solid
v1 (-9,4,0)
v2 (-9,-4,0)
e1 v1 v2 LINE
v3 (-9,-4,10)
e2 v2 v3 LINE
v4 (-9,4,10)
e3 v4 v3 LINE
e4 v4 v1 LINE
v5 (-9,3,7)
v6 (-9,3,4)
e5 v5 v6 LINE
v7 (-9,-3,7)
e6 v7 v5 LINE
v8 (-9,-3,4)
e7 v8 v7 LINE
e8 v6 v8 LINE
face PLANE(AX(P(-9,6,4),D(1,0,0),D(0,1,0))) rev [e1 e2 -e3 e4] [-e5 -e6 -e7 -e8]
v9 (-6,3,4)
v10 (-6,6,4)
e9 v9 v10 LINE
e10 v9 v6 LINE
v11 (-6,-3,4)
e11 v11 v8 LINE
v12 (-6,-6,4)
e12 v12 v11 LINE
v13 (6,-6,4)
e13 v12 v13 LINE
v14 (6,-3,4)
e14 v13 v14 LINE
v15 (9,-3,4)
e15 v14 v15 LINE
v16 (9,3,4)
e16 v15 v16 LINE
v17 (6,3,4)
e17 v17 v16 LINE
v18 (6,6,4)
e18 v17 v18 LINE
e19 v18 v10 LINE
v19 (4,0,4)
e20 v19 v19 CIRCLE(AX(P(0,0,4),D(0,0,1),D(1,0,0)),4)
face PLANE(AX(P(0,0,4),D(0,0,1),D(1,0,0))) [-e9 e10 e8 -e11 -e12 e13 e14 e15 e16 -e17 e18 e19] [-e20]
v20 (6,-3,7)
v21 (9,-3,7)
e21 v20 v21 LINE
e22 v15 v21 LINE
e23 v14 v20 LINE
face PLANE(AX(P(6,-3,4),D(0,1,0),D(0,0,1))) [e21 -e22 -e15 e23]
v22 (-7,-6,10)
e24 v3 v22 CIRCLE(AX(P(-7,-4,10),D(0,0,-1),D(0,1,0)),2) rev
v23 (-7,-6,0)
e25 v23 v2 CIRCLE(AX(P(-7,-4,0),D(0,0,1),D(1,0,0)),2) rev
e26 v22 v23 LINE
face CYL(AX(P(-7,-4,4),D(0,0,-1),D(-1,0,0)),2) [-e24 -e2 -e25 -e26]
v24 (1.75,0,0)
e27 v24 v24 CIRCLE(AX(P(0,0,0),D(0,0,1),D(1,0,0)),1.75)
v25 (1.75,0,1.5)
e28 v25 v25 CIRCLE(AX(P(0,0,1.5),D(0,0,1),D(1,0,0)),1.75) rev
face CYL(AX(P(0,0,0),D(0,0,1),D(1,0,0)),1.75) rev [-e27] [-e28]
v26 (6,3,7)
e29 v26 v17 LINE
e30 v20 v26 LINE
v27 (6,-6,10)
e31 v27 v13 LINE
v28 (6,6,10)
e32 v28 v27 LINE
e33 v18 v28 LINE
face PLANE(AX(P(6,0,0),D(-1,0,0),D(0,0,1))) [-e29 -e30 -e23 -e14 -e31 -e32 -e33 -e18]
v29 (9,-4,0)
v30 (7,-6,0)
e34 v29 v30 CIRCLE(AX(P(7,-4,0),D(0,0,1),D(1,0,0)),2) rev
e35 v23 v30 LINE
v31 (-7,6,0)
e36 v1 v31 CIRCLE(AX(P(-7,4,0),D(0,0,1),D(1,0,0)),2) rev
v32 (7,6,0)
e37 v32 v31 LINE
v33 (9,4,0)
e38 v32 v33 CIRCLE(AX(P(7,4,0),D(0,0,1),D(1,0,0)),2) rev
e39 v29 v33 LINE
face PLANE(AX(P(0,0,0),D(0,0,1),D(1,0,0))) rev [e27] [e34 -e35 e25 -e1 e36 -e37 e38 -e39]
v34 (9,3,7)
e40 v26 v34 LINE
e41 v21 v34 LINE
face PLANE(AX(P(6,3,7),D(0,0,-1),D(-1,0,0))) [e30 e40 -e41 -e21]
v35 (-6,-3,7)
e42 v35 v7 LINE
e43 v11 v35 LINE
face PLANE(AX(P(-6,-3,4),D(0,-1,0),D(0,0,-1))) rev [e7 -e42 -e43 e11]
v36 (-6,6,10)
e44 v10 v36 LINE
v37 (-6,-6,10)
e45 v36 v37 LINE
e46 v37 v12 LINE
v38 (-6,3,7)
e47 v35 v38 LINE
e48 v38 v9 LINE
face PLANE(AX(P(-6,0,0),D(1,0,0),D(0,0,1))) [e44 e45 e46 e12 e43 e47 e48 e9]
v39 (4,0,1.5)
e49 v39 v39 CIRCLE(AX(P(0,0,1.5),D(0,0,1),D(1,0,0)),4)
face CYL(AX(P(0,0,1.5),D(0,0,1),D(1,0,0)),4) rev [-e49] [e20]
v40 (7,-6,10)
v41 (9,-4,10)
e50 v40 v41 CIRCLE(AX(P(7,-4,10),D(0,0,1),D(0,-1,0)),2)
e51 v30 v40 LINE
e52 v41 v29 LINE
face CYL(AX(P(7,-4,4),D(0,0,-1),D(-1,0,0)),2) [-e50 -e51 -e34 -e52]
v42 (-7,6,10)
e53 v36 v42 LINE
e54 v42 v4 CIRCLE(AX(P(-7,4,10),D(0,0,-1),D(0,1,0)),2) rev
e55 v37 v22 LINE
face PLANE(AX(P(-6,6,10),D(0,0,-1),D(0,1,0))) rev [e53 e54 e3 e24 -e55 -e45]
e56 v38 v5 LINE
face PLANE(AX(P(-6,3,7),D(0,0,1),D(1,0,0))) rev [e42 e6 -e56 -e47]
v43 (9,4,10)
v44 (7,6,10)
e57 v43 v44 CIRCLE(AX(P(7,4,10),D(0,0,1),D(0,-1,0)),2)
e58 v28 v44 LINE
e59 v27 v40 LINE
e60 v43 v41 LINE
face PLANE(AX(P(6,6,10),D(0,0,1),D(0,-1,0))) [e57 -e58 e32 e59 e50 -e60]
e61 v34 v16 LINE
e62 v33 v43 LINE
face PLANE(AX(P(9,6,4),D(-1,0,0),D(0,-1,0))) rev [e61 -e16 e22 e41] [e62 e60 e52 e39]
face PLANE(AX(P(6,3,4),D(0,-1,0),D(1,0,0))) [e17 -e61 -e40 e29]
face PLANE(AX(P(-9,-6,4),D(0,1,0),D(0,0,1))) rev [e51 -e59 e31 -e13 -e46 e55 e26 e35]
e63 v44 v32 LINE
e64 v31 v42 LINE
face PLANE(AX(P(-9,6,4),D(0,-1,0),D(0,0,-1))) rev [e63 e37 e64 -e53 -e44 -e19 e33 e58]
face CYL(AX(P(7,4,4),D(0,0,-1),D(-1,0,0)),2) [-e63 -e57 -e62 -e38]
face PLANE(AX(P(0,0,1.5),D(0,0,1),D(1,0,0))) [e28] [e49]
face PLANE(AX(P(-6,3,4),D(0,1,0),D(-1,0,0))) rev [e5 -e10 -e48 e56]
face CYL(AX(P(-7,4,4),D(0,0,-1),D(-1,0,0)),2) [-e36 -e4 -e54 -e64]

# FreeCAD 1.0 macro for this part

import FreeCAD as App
import Part
import Sketcher
Q = App.Units.Quantity


def edges_at(feature, points):
    """Names of the edges that pass closest to the given points."""
    edges = feature.Shape.Edges
    near = lambda p: min(range(len(edges)), key=lambda i: edges[i].distToShape(Part.Vertex(*p))[0])
    return sorted({f"Edge{near(p) + 1}" for p in points})

doc = App.newDocument("Part")
body = doc.addObject("PartDesign::Body", "Body")

# Sketch on XY plane
sketch1 = doc.addObject("Sketcher::SketchObject", "Sketch")
body.addObject(sketch1)
sketch1.AttachmentSupport = (doc.XY_Plane, [""])
sketch1.MapMode = "FlatFace"
sketch1.addGeometry(Part.LineSegment(App.Vector(-9, 6, 0), App.Vector(-9, -6, 0)), False)
sketch1.addGeometry(Part.LineSegment(App.Vector(-9, -6, 0), App.Vector(9, -6, 0)), False)
sketch1.addGeometry(Part.LineSegment(App.Vector(9, -6, 0), App.Vector(9, 6, 0)), False)
sketch1.addGeometry(Part.LineSegment(App.Vector(9, 6, 0), App.Vector(-9, 6, 0)), False)
sketch1.addConstraint(Sketcher.Constraint("Coincident", 0, 2, 1, 1))
sketch1.addConstraint(Sketcher.Constraint("Coincident", 1, 2, 2, 1))
sketch1.addConstraint(Sketcher.Constraint("Coincident", 2, 2, 3, 1))
sketch1.addConstraint(Sketcher.Constraint("Coincident", 3, 2, 0, 1))
sketch1.addConstraint(Sketcher.Constraint("Vertical", 0))
sketch1.addConstraint(Sketcher.Constraint("Horizontal", 1))
sketch1.addConstraint(Sketcher.Constraint("Vertical", 2))
sketch1.addConstraint(Sketcher.Constraint("Horizontal", 3))
sketch1.addConstraint(Sketcher.Constraint("Symmetric", 0, 2, 2, 2, -1, 1))
sketch1.addConstraint(Sketcher.Constraint("DistanceX", 1, 1, 1, 2, Q("18 mm")))
sketch1.addConstraint(Sketcher.Constraint("DistanceY", 0, 2, 0, 1, Q("12 mm")))
pad1 = doc.addObject("PartDesign::Pad", "Pad")
body.addObject(pad1)
pad1.Profile = sketch1
pad1.Length = 4

# Sketch on YZ plane
sketch2 = doc.addObject("Sketcher::SketchObject", "Sketch001")
body.addObject(sketch2)
sketch2.AttachmentSupport = (doc.YZ_Plane, [""])
sketch2.MapMode = "FlatFace"
sketch2.AttachmentOffset = App.Placement(App.Vector(0, 0, 9), App.Rotation())
sketch2.addGeometry(Part.LineSegment(App.Vector(6, 4, 0), App.Vector(6, 10, 0)), False)
sketch2.addGeometry(Part.LineSegment(App.Vector(6, 10, 0), App.Vector(-6, 10, 0)), False)
sketch2.addGeometry(Part.LineSegment(App.Vector(-6, 10, 0), App.Vector(-6, 4, 0)), False)
sketch2.addGeometry(Part.LineSegment(App.Vector(-6, 4, 0), App.Vector(-3, 4, 0)), False)
sketch2.addGeometry(Part.LineSegment(App.Vector(-3, 4, 0), App.Vector(-3, 7, 0)), False)
sketch2.addGeometry(Part.LineSegment(App.Vector(-3, 7, 0), App.Vector(3, 7, 0)), False)
sketch2.addGeometry(Part.LineSegment(App.Vector(3, 7, 0), App.Vector(3, 4, 0)), False)
sketch2.addGeometry(Part.LineSegment(App.Vector(3, 4, 0), App.Vector(6, 4, 0)), False)
sketch2.addConstraint(Sketcher.Constraint("Coincident", 0, 2, 1, 1))
sketch2.addConstraint(Sketcher.Constraint("Coincident", 1, 2, 2, 1))
sketch2.addConstraint(Sketcher.Constraint("Coincident", 2, 2, 3, 1))
sketch2.addConstraint(Sketcher.Constraint("Coincident", 3, 2, 4, 1))
sketch2.addConstraint(Sketcher.Constraint("Coincident", 4, 2, 5, 1))
sketch2.addConstraint(Sketcher.Constraint("Coincident", 5, 2, 6, 1))
sketch2.addConstraint(Sketcher.Constraint("Coincident", 6, 2, 7, 1))
sketch2.addConstraint(Sketcher.Constraint("Coincident", 7, 2, 0, 1))
sketch2.addConstraint(Sketcher.Constraint("Vertical", 0))
sketch2.addConstraint(Sketcher.Constraint("Horizontal", 1))
sketch2.addConstraint(Sketcher.Constraint("Vertical", 2))
sketch2.addConstraint(Sketcher.Constraint("Horizontal", 3))
sketch2.addConstraint(Sketcher.Constraint("Vertical", 4))
sketch2.addConstraint(Sketcher.Constraint("Horizontal", 5))
sketch2.addConstraint(Sketcher.Constraint("Vertical", 6))
sketch2.addConstraint(Sketcher.Constraint("Horizontal", 7))
sketch2.addConstraint(Sketcher.Constraint("Symmetric", 3, 2, 6, 2, -2))
sketch2.addConstraint(Sketcher.Constraint("Equal", 3, 7))
sketch2.addConstraint(Sketcher.Constraint("Equal", 5, 0))
sketch2.addConstraint(Sketcher.Constraint("Equal", 7, 4))
sketch2.addConstraint(Sketcher.Constraint("DistanceX", 1, 2, 1, 1, Q("12 mm")))
sketch2.addConstraint(Sketcher.Constraint("DistanceX", 3, 1, 3, 2, Q("3 mm")))
sketch2.addConstraint(Sketcher.Constraint("DistanceY", -1, 1, 0, 2, Q("10 mm")))
pad2 = doc.addObject("PartDesign::Pad", "Pad001")
body.addObject(pad2)
pad2.Profile = sketch2
pad2.Length = 3
pad2.Reversed = True
doc.recompute()

mirrored = doc.addObject("PartDesign::Mirrored", "Mirrored")
body.addObject(mirrored)
mirrored.Originals = [pad2]
mirrored.MirrorPlane = (doc.YZ_Plane, [""])
body.Tip = mirrored

# Sketch on XY plane
sketch3 = doc.addObject("Sketcher::SketchObject", "Sketch002")
body.addObject(sketch3)
sketch3.AttachmentSupport = (doc.XY_Plane, [""])
sketch3.MapMode = "FlatFace"
sketch3.AttachmentOffset = App.Placement(App.Vector(0, 0, 4), App.Rotation())
sketch3.addGeometry(Part.Circle(App.Vector(0, 0, 0), App.Vector(0, 0, 1), 1.8), False)
sketch3.addConstraint(Sketcher.Constraint("Coincident", 0, 3, -1, 1))
sketch3.addConstraint(Sketcher.Constraint("Diameter", 0, Q("3.5 mm")))
pocket1 = doc.addObject("PartDesign::Pocket", "Pocket")
body.addObject(pocket1)
pocket1.Profile = sketch3
pocket1.Type = "ThroughAll"

# Sketch on XY plane
sketch4 = doc.addObject("Sketcher::SketchObject", "Sketch003")
body.addObject(sketch4)
sketch4.AttachmentSupport = (doc.XY_Plane, [""])
sketch4.MapMode = "FlatFace"
sketch4.AttachmentOffset = App.Placement(App.Vector(0, 0, 4), App.Rotation())
sketch4.addGeometry(Part.Circle(App.Vector(0, 0, 0), App.Vector(0, 0, 1), 4), False)
sketch4.addConstraint(Sketcher.Constraint("Coincident", 0, 3, -1, 1))
sketch4.addConstraint(Sketcher.Constraint("Diameter", 0, Q("8 mm")))
pocket2 = doc.addObject("PartDesign::Pocket", "Pocket001")
body.addObject(pocket2)
pocket2.Profile = sketch4
pocket2.Length = 2.5
doc.recompute()

fillet = doc.addObject("PartDesign::Fillet", "Fillet")
body.addObject(fillet)
fillet.Base = (pocket2, edges_at(pocket2, [
    (-9, 6, 5),
    (9, 6, 5),
    (9, -6, 5),
    (-9, -6, 5),
]))
fillet.Radius = 2

doc.recompute()
